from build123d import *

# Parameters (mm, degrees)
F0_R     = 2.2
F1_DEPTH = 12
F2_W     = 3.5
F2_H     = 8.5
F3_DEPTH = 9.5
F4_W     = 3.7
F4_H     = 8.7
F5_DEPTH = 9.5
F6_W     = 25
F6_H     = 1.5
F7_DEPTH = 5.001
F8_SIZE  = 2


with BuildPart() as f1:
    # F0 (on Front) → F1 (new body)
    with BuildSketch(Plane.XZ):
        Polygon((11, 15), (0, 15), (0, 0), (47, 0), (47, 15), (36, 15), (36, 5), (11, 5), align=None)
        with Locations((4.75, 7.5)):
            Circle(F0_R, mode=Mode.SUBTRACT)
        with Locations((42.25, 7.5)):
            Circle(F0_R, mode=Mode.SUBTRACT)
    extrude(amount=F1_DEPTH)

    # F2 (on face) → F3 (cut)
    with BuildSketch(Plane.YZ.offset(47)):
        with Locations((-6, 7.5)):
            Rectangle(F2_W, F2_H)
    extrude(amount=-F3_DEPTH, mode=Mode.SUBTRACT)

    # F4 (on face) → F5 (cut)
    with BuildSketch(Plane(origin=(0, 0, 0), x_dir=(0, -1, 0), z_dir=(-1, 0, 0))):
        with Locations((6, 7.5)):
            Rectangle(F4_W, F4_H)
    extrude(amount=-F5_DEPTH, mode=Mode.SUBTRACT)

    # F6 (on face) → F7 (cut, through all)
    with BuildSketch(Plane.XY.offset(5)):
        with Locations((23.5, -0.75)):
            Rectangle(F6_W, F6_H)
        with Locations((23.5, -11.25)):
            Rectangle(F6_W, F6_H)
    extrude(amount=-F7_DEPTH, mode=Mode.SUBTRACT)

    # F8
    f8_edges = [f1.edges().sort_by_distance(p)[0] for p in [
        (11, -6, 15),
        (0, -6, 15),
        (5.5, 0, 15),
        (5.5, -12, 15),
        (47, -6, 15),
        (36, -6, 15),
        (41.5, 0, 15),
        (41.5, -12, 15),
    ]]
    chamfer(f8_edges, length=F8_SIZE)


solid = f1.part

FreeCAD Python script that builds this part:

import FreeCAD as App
import Part
import Sketcher


def edges_at(feature, points):
    """Names of the edges that pass closest to the given points."""
    edges = feature.Shape.Edges
    near = lambda p: min(range(len(edges)), key=lambda i: edges[i].distToShape(Part.Vertex(*p))[0])
    return sorted({f"Edge{near(p) + 1}" for p in points})

doc = App.newDocument("Part")
body = doc.addObject("PartDesign::Body", "Body")

# Sketch on XZ plane
sketch1 = doc.addObject("Sketcher::SketchObject", "Sketch")
body.addObject(sketch1)
sketch1.AttachmentSupport = (doc.XZ_Plane, [""])
sketch1.MapMode = "FlatFace"
sketch1.addGeometry(Part.LineSegment(App.Vector(11, 15, 0), App.Vector(0, 15, 0)), False)
sketch1.addGeometry(Part.LineSegment(App.Vector(0, 15, 0), App.Vector(0, 0, 0)), False)
sketch1.addGeometry(Part.LineSegment(App.Vector(0, 0, 0), App.Vector(47, 0, 0)), False)
sketch1.addGeometry(Part.LineSegment(App.Vector(47, 0, 0), App.Vector(47, 15, 0)), False)
sketch1.addGeometry(Part.LineSegment(App.Vector(47, 15, 0), App.Vector(36, 15, 0)), False)
sketch1.addGeometry(Part.LineSegment(App.Vector(36, 15, 0), App.Vector(36, 5, 0)), False)
sketch1.addGeometry(Part.LineSegment(App.Vector(36, 5, 0), App.Vector(11, 5, 0)), False)
sketch1.addGeometry(Part.LineSegment(App.Vector(11, 5, 0), App.Vector(11, 15, 0)), False)
sketch1.addGeometry(Part.Circle(App.Vector(4.8, 7.5, 0), App.Vector(0, 0, 1), 2.2), False)
sketch1.addGeometry(Part.Circle(App.Vector(42.2, 7.5, 0), App.Vector(0, 0, 1), 2.2), False)
sketch1.addConstraint(Sketcher.Constraint("Coincident", 0, 2, 1, 1))
sketch1.addConstraint(Sketcher.Constraint("Coincident", 1, 2, 2, 1))
sketch1.addConstraint(Sketcher.Constraint("Coincident", 2, 2, 3, 1))
sketch1.addConstraint(Sketcher.Constraint("Coincident", 3, 2, 4, 1))
sketch1.addConstraint(Sketcher.Constraint("Coincident", 4, 2, 5, 1))
sketch1.addConstraint(Sketcher.Constraint("Coincident", 5, 2, 6, 1))
sketch1.addConstraint(Sketcher.Constraint("Coincident", 6, 2, 7, 1))
sketch1.addConstraint(Sketcher.Constraint("Coincident", 7, 2, 0, 1))
sketch1.addConstraint(Sketcher.Constraint("Horizontal", 0))
sketch1.addConstraint(Sketcher.Constraint("Vertical", 1))
sketch1.addConstraint(Sketcher.Constraint("Horizontal", 2))
sketch1.addConstraint(Sketcher.Constraint("Vertical", 3))
sketch1.addConstraint(Sketcher.Constraint("Horizontal", 4))
sketch1.addConstraint(Sketcher.Constraint("Vertical", 5))
sketch1.addConstraint(Sketcher.Constraint("Horizontal", 6))
sketch1.addConstraint(Sketcher.Constraint("Vertical", 7))
sketch1.addConstraint(Sketcher.Constraint("Coincident", 1, 2, -1, 1))
sketch1.addConstraint(Sketcher.Constraint("Equal", 8, 9))
sketch1.addConstraint(Sketcher.Constraint("Horizontal", 8, 3, 9, 3))
sketch1.addConstraint(Sketcher.Constraint("Horizontal", 0, 2, 3, 2))
sketch1.addConstraint(Sketcher.Constraint("Equal", 0, 4))
sketch1.addConstraint(Sketcher.Constraint("Diameter", 8, 4.4))
sketch1.addConstraint(Sketcher.Constraint("DistanceX", 0, 2, 0, 1, 11.0))
sketch1.addConstraint(Sketcher.Constraint("DistanceX", 2, 1, 2, 2, 47.0))
sketch1.addConstraint(Sketcher.Constraint("DistanceY", 1, 2, 1, 1, 15.0))
sketch1.addConstraint(Sketcher.Constraint("DistanceY", 5, 2, 5, 1, 10.0))
sketch1.addConstraint(Sketcher.Constraint("DistanceY", -1, 1, 8, 3, 7.5))
sketch1.addConstraint(Sketcher.Constraint("DistanceX", 8, 3, 9, 3, 37.5))
sketch1.addConstraint(Sketcher.Constraint("DistanceX", -1, 1, 8, 3, 4.75))
pad1 = doc.addObject("PartDesign::Pad", "Pad")
body.addObject(pad1)
pad1.Profile = sketch1
pad1.Length = 12

# Sketch on YZ plane
sketch2 = doc.addObject("Sketcher::SketchObject", "Sketch001")
body.addObject(sketch2)
sketch2.AttachmentSupport = (doc.YZ_Plane, [""])
sketch2.MapMode = "FlatFace"
sketch2.AttachmentOffset = App.Placement(App.Vector(0, 0, 47), App.Rotation())
sketch2.addGeometry(Part.LineSegment(App.Vector(-7.8, 11.8, 0), App.Vector(-7.8, 3.2, 0)), False)
sketch2.addGeometry(Part.LineSegment(App.Vector(-7.8, 3.2, 0), App.Vector(-4.2, 3.2, 0)), False)
sketch2.addGeometry(Part.LineSegment(App.Vector(-4.2, 3.2, 0), App.Vector(-4.2, 11.8, 0)), False)
sketch2.addGeometry(Part.LineSegment(App.Vector(-4.2, 11.8, 0), App.Vector(-7.8, 11.8, 0)), False)
sketch2.addConstraint(Sketcher.Constraint("Coincident", 0, 2, 1, 1))
sketch2.addConstraint(Sketcher.Constraint("Coincident", 1, 2, 2, 1))
sketch2.addConstraint(Sketcher.Constraint("Coincident", 2, 2, 3, 1))
sketch2.addConstraint(Sketcher.Constraint("Coincident", 3, 2, 0, 1))
sketch2.addConstraint(Sketcher.Constraint("Vertical", 0))
sketch2.addConstraint(Sketcher.Constraint("Horizontal", 1))
sketch2.addConstraint(Sketcher.Constraint("Vertical", 2))
sketch2.addConstraint(Sketcher.Constraint("Horizontal", 3))
sketch2.addConstraint(Sketcher.Constraint("DistanceX", 1, 1, 1, 2, 3.5))
sketch2.addConstraint(Sketcher.Constraint("DistanceY", 0, 2, 0, 1, 8.5))
sketch2.addConstraint(Sketcher.Constraint("DistanceX", 0, 2, -1, 1, 7.75))
sketch2.addConstraint(Sketcher.Constraint("DistanceY", -1, 1, 0, 2, 3.25))
pocket1 = doc.addObject("PartDesign::Pocket", "Pocket")
body.addObject(pocket1)
pocket1.Profile = sketch2
pocket1.Length = 9.5

# Sketch on YZ plane
sketch3 = doc.addObject("Sketcher::SketchObject", "Sketch002")
body.addObject(sketch3)
sketch3.AttachmentSupport = (doc.YZ_Plane, [""])
sketch3.MapMode = "FlatFace"
sketch3.addGeometry(Part.LineSegment(App.Vector(-4.2, 11.8, 0), App.Vector(-4.2, 3.1, 0)), False)
sketch3.addGeometry(Part.LineSegment(App.Vector(-4.2, 3.1, 0), App.Vector(-7.8, 3.1, 0)), False)
sketch3.addGeometry(Part.LineSegment(App.Vector(-7.8, 3.1, 0), App.Vector(-7.8, 11.8, 0)), False)
sketch3.addGeometry(Part.LineSegment(App.Vector(-7.8, 11.8, 0), App.Vector(-4.2, 11.8, 0)), False)
sketch3.addConstraint(Sketcher.Constraint("Coincident", 0, 2, 1, 1))
sketch3.addConstraint(Sketcher.Constraint("Coincident", 1, 2, 2, 1))
sketch3.addConstraint(Sketcher.Constraint("Coincident", 2, 2, 3, 1))
sketch3.addConstraint(Sketcher.Constraint("Coincident", 3, 2, 0, 1))
sketch3.addConstraint(Sketcher.Constraint("Vertical", 0))
sketch3.addConstraint(Sketcher.Constraint("Horizontal", 1))
sketch3.addConstraint(Sketcher.Constraint("Vertical", 2))
sketch3.addConstraint(Sketcher.Constraint("Horizontal", 3))
sketch3.addConstraint(Sketcher.Constraint("DistanceX", 1, 2, 1, 1, 3.7))
sketch3.addConstraint(Sketcher.Constraint("DistanceY", 0, 2, 0, 1, 8.7))
sketch3.addConstraint(Sketcher.Constraint("DistanceX", 0, 2, -1, 1, 4.15))
sketch3.addConstraint(Sketcher.Constraint("DistanceY", -1, 1, 0, 2, 3.15))
pocket2 = doc.addObject("PartDesign::Pocket", "Pocket001")
body.addObject(pocket2)
pocket2.Profile = sketch3
pocket2.Length = 9.5
pocket2.Reversed = True

# Sketch on XY plane
sketch4 = doc.addObject("Sketcher::SketchObject", "Sketch003")
body.addObject(sketch4)
sketch4.AttachmentSupport = (doc.XY_Plane, [""])
sketch4.MapMode = "FlatFace"
sketch4.AttachmentOffset = App.Placement(App.Vector(0, 0, 5), App.Rotation())
sketch4.addGeometry(Part.LineSegment(App.Vector(11, 0, 0), App.Vector(11, -1.5, 0)), False)
sketch4.addGeometry(Part.LineSegment(App.Vector(11, -1.5, 0), App.Vector(36, -1.5, 0)), False)
sketch4.addGeometry(Part.LineSegment(App.Vector(36, -1.5, 0), App.Vector(36, 0, 0)), False)
sketch4.addGeometry(Part.LineSegment(App.Vector(36, 0, 0), App.Vector(11, 0, 0)), False)
sketch4.addGeometry(Part.LineSegment(App.Vector(11, -10.5, 0), App.Vector(11, -12, 0)), False)
sketch4.addGeometry(Part.LineSegment(App.Vector(11, -12, 0), App.Vector(36, -12, 0)), False)
sketch4.addGeometry(Part.LineSegment(App.Vector(36, -12, 0), App.Vector(36, -10.5, 0)), False)
sketch4.addGeometry(Part.LineSegment(App.Vector(36, -10.5, 0), App.Vector(11, -10.5, 0)), False)
sketch4.addConstraint(Sketcher.Constraint("Coincident", 0, 2, 1, 1))
sketch4.addConstraint(Sketcher.Constraint("Coincident", 1, 2, 2, 1))
sketch4.addConstraint(Sketcher.Constraint("Coincident", 2, 2, 3, 1))
sketch4.addConstraint(Sketcher.Constraint("Coincident", 3, 2, 0, 1))
sketch4.addConstraint(Sketcher.Constraint("Coincident", 4, 2, 5, 1))
sketch4.addConstraint(Sketcher.Constraint("Coincident", 5, 2, 6, 1))
sketch4.addConstraint(Sketcher.Constraint("Coincident", 6, 2, 7, 1))
sketch4.addConstraint(Sketcher.Constraint("Coincident", 7, 2, 4, 1))
sketch4.addConstraint(Sketcher.Constraint("Vertical", 0))
sketch4.addConstraint(Sketcher.Constraint("Horizontal", 1))
sketch4.addConstraint(Sketcher.Constraint("Vertical", 2))
sketch4.addConstraint(Sketcher.Constraint("Horizontal", 3))
sketch4.addConstraint(Sketcher.Constraint("Vertical", 4))
sketch4.addConstraint(Sketcher.Constraint("Horizontal", 5))
sketch4.addConstraint(Sketcher.Constraint("Vertical", 6))
sketch4.addConstraint(Sketcher.Constraint("Horizontal", 7))
sketch4.addConstraint(Sketcher.Constraint("PointOnObject", 2, 2, -1))
sketch4.addConstraint(Sketcher.Constraint("Vertical", 3, 2, 4, 2))
sketch4.addConstraint(Sketcher.Constraint("Vertical", 2, 2, 5, 2))
sketch4.addConstraint(Sketcher.Constraint("Equal", 2, 4))
sketch4.addConstraint(Sketcher.Constraint("DistanceX", 1, 1, 1, 2, 25.0))
sketch4.addConstraint(Sketcher.Constraint("DistanceY", 0, 2, 0, 1, 1.5))
sketch4.addConstraint(Sketcher.Constraint("DistanceX", -1, 1, 0, 2, 11.0))
sketch4.addConstraint(Sketcher.Constraint("DistanceY", 4, 2, -1, 1, 12.0))
pocket3 = doc.addObject("PartDesign::Pocket", "Pocket002")
body.addObject(pocket3)
pocket3.Profile = sketch4
pocket3.Type = "ThroughAll"
doc.recompute()

chamfer = doc.addObject("PartDesign::Chamfer", "Chamfer")
body.addObject(chamfer)
chamfer.Base = (pocket3, edges_at(pocket3, [
    (11, -6, 15),
    (0, -6, 15),
    (5.5, 0, 15),
    (5.5, -12, 15),
    (47, -6, 15),
    (36, -6, 15),
    (41.5, 0, 15),
    (41.5, -12, 15),
]))
chamfer.Size = 2

doc.recompute()
